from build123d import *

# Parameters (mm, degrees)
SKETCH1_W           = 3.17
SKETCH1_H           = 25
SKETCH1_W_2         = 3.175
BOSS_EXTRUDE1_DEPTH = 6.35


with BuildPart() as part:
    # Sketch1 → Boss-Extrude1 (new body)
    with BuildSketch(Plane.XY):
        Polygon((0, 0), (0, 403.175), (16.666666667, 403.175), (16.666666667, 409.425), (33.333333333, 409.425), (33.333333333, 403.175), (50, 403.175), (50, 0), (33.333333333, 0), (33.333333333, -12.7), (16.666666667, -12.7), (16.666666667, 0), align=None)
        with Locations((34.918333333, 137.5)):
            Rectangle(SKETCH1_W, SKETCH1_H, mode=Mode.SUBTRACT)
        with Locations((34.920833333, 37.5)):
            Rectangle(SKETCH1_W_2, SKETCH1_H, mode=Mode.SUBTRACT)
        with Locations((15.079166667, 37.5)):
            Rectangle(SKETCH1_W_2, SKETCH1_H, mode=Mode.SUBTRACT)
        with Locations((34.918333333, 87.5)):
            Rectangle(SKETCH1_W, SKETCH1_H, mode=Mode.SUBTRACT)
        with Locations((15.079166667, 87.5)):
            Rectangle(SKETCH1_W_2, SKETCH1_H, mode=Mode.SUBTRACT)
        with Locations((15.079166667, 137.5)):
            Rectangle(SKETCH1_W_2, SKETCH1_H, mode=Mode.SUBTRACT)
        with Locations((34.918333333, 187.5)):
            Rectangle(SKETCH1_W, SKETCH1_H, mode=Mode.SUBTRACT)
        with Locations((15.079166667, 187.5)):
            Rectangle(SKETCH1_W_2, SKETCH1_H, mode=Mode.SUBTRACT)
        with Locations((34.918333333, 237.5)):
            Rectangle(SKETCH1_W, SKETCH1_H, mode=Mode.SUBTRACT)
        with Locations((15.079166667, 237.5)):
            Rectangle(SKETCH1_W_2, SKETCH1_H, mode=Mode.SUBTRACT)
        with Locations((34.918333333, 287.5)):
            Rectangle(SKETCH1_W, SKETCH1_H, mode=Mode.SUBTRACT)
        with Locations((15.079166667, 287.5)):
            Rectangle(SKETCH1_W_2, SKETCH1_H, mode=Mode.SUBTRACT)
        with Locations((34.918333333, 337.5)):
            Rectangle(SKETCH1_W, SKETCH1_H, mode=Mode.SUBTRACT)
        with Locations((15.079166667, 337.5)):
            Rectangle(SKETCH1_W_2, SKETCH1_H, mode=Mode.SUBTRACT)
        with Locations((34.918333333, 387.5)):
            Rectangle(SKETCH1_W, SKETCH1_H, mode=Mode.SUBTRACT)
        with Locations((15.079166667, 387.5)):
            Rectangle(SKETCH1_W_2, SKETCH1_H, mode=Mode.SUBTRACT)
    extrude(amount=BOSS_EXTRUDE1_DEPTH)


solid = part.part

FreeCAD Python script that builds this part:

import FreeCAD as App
import Part
import Sketcher
from FreeCAD import Vector
Q = App.Units.Quantity


def add_polygon(sketch, points):
    """Adds a closed chain of lines whose ends are joined by coincident constraints."""
    first, n = sketch.GeometryCount, len(points)
    for a, b in zip(points, points[1:] + points[:1]):
        sketch.addGeometry(Part.LineSegment(App.Vector(*a, 0), App.Vector(*b, 0)), False)
    for i in range(n):
        sketch.addConstraint(Sketcher.Constraint("Coincident", first + i, 2, first + (i + 1) % n, 1))

doc = App.newDocument("Part")
body = doc.addObject("PartDesign::Body", "Body")

# Sketch on XY plane
sketch1 = body.newObject("Sketcher::SketchObject", "Sketch")
sketch1.AttachmentSupport = (doc.getObject("XY_Plane"), [""])
sketch1.MapMode = "FlatFace"
add_polygon(sketch1, [(0, 403.2), (0, 0), (16.7, 0), (16.7, -12.7), (33.3, -12.7), (33.3, 0), (50, 0), (50, 403.2), (33.3, 403.2), (33.3, 409.4), (16.7, 409.4), (16.7, 403.2)])  # lines 0-11
add_polygon(sketch1, [(33.3, 25), (33.3, 50), (36.5, 50), (36.5, 25)])  # lines 12-15
add_polygon(sketch1, [(33.3, 75), (33.3, 100), (36.5, 100), (36.5, 75)])  # lines 16-19
add_polygon(sketch1, [(33.3, 125), (33.3, 150), (36.5, 150), (36.5, 125)])  # lines 20-23
add_polygon(sketch1, [(33.3, 175), (33.3, 200), (36.5, 200), (36.5, 175)])  # lines 24-27
add_polygon(sketch1, [(13.5, 25), (13.5, 50), (16.7, 50), (16.7, 25)])  # lines 28-31
add_polygon(sketch1, [(13.5, 75), (13.5, 100), (16.7, 100), (16.7, 75)])  # lines 32-35
add_polygon(sketch1, [(13.5, 125), (13.5, 150), (16.7, 150), (16.7, 125)])  # lines 36-39
add_polygon(sketch1, [(13.5, 175), (13.5, 200), (16.7, 200), (16.7, 175)])  # lines 40-43
add_polygon(sketch1, [(33.3, 225), (33.3, 250), (36.5, 250), (36.5, 225)])  # lines 44-47
add_polygon(sketch1, [(33.3, 275), (33.3, 300), (36.5, 300), (36.5, 275)])  # lines 48-51
add_polygon(sketch1, [(33.3, 325), (33.3, 350), (36.5, 350), (36.5, 325)])  # lines 52-55
add_polygon(sketch1, [(33.3, 375), (33.3, 400), (36.5, 400), (36.5, 375)])  # lines 56-59
add_polygon(sketch1, [(13.5, 225), (13.5, 250), (16.7, 250), (16.7, 225)])  # lines 60-63
add_polygon(sketch1, [(13.5, 275), (13.5, 300), (16.7, 300), (16.7, 275)])  # lines 64-67
add_polygon(sketch1, [(13.5, 325), (13.5, 350), (16.7, 350), (16.7, 325)])  # lines 68-71
add_polygon(sketch1, [(13.5, 375), (13.5, 400), (16.7, 400), (16.7, 375)])  # lines 72-75
sketch1.addConstraint(Sketcher.Constraint("Vertical", 0))
sketch1.addConstraint(Sketcher.Constraint("Horizontal", 1))
sketch1.addConstraint(Sketcher.Constraint("Vertical", 2))
sketch1.addConstraint(Sketcher.Constraint("Horizontal", 3))
sketch1.addConstraint(Sketcher.Constraint("Vertical", 4))
sketch1.addConstraint(Sketcher.Constraint("Horizontal", 5))
sketch1.addConstraint(Sketcher.Constraint("Vertical", 6))
sketch1.addConstraint(Sketcher.Constraint("Horizontal", 7))
sketch1.addConstraint(Sketcher.Constraint("Vertical", 8))
sketch1.addConstraint(Sketcher.Constraint("Horizontal", 9))
sketch1.addConstraint(Sketcher.Constraint("Vertical", 10))
sketch1.addConstraint(Sketcher.Constraint("Horizontal", 11))
sketch1.addConstraint(Sketcher.Constraint("Vertical", 12))
sketch1.addConstraint(Sketcher.Constraint("Horizontal", 13))
sketch1.addConstraint(Sketcher.Constraint("Vertical", 14))
sketch1.addConstraint(Sketcher.Constraint("Horizontal", 15))
sketch1.addConstraint(Sketcher.Constraint("Vertical", 16))
sketch1.addConstraint(Sketcher.Constraint("Horizontal", 17))
sketch1.addConstraint(Sketcher.Constraint("Vertical", 18))
sketch1.addConstraint(Sketcher.Constraint("Horizontal", 19))
sketch1.addConstraint(Sketcher.Constraint("Vertical", 20))
sketch1.addConstraint(Sketcher.Constraint("Horizontal", 21))
sketch1.addConstraint(Sketcher.Constraint("Vertical", 22))
sketch1.addConstraint(Sketcher.Constraint("Horizontal", 23))
sketch1.addConstraint(Sketcher.Constraint("Vertical", 24))
sketch1.addConstraint(Sketcher.Constraint("Horizontal", 25))
sketch1.addConstraint(Sketcher.Constraint("Vertical", 26))
sketch1.addConstraint(Sketcher.Constraint("Horizontal", 27))
sketch1.addConstraint(Sketcher.Constraint("Vertical", 28))
sketch1.addConstraint(Sketcher.Constraint("Horizontal", 29))
sketch1.addConstraint(Sketcher.Constraint("Vertical", 30))
sketch1.addConstraint(Sketcher.Constraint("Horizontal", 31))
sketch1.addConstraint(Sketcher.Constraint("Vertical", 32))
sketch1.addConstraint(Sketcher.Constraint("Horizontal", 33))
sketch1.addConstraint(Sketcher.Constraint("Vertical", 34))
sketch1.addConstraint(Sketcher.Constraint("Horizontal", 35))
sketch1.addConstraint(Sketcher.Constraint("Vertical", 36))
sketch1.addConstraint(Sketcher.Constraint("Horizontal", 37))
sketch1.addConstraint(Sketcher.Constraint("Vertical", 38))
sketch1.addConstraint(Sketcher.Constraint("Horizontal", 39))
sketch1.addConstraint(Sketcher.Constraint("Vertical", 40))
sketch1.addConstraint(Sketcher.Constraint("Horizontal", 41))
sketch1.addConstraint(Sketcher.Constraint("Vertical", 42))
sketch1.addConstraint(Sketcher.Constraint("Horizontal", 43))
sketch1.addConstraint(Sketcher.Constraint("Vertical", 44))
sketch1.addConstraint(Sketcher.Constraint("Horizontal", 45))
sketch1.addConstraint(Sketcher.Constraint("Vertical", 46))
sketch1.addConstraint(Sketcher.Constraint("Horizontal", 47))
sketch1.addConstraint(Sketcher.Constraint("Vertical", 48))
sketch1.addConstraint(Sketcher.Constraint("Horizontal", 49))
sketch1.addConstraint(Sketcher.Constraint("Vertical", 50))
sketch1.addConstraint(Sketcher.Constraint("Horizontal", 51))
sketch1.addConstraint(Sketcher.Constraint("Vertical", 52))
sketch1.addConstraint(Sketcher.Constraint("Horizontal", 53))
sketch1.addConstraint(Sketcher.Constraint("Vertical", 54))
sketch1.addConstraint(Sketcher.Constraint("Horizontal", 55))
sketch1.addConstraint(Sketcher.Constraint("Vertical", 56))
sketch1.addConstraint(Sketcher.Constraint("Horizontal", 57))
sketch1.addConstraint(Sketcher.Constraint("Vertical", 58))
sketch1.addConstraint(Sketcher.Constraint("Horizontal", 59))
sketch1.addConstraint(Sketcher.Constraint("Vertical", 60))
sketch1.addConstraint(Sketcher.Constraint("Horizontal", 61))
sketch1.addConstraint(Sketcher.Constraint("Vertical", 62))
sketch1.addConstraint(Sketcher.Constraint("Horizontal", 63))
sketch1.addConstraint(Sketcher.Constraint("Vertical", 64))
sketch1.addConstraint(Sketcher.Constraint("Horizontal", 65))
sketch1.addConstraint(Sketcher.Constraint("Vertical", 66))
sketch1.addConstraint(Sketcher.Constraint("Horizontal", 67))
sketch1.addConstraint(Sketcher.Constraint("Vertical", 68))
sketch1.addConstraint(Sketcher.Constraint("Horizontal", 69))
sketch1.addConstraint(Sketcher.Constraint("Vertical", 70))
sketch1.addConstraint(Sketcher.Constraint("Horizontal", 71))
sketch1.addConstraint(Sketcher.Constraint("Vertical", 72))
sketch1.addConstraint(Sketcher.Constraint("Horizontal", 73))
sketch1.addConstraint(Sketcher.Constraint("Vertical", 74))
sketch1.addConstraint(Sketcher.Constraint("Horizontal", 75))
sketch1.addConstraint(Sketcher.Constraint("Coincident", 0, 2, -1, 1))
sketch1.addConstraint(Sketcher.Constraint("PointOnObject", 4, 2, -1))
sketch1.addConstraint(Sketcher.Constraint("Horizontal", 7, 2, 10, 2))
sketch1.addConstraint(Sketcher.Constraint("Horizontal", 13, 2, 28, 2))
sketch1.addConstraint(Sketcher.Constraint("Horizontal", 15, 2, 30, 2))
sketch1.addConstraint(Sketcher.Constraint("Horizontal", 17, 2, 32, 2))
sketch1.addConstraint(Sketcher.Constraint("Horizontal", 19, 2, 34, 2))
sketch1.addConstraint(Sketcher.Constraint("Horizontal", 21, 2, 36, 2))
sketch1.addConstraint(Sketcher.Constraint("Horizontal", 23, 2, 38, 2))
sketch1.addConstraint(Sketcher.Constraint("Horizontal", 25, 2, 40, 2))
sketch1.addConstraint(Sketcher.Constraint("Horizontal", 27, 2, 42, 2))
sketch1.addConstraint(Sketcher.Constraint("Horizontal", 45, 2, 60, 2))
sketch1.addConstraint(Sketcher.Constraint("Horizontal", 47, 2, 62, 2))
sketch1.addConstraint(Sketcher.Constraint("Horizontal", 49, 2, 64, 2))
sketch1.addConstraint(Sketcher.Constraint("Horizontal", 51, 2, 66, 2))
sketch1.addConstraint(Sketcher.Constraint("Horizontal", 53, 2, 68, 2))
sketch1.addConstraint(Sketcher.Constraint("Horizontal", 55, 2, 70, 2))
sketch1.addConstraint(Sketcher.Constraint("Horizontal", 57, 2, 72, 2))
sketch1.addConstraint(Sketcher.Constraint("Horizontal", 59, 2, 74, 2))
sketch1.addConstraint(Sketcher.Constraint("Vertical", 4, 2, 7, 2))
sketch1.addConstraint(Sketcher.Constraint("Vertical", 2, 2, 9, 2))
sketch1.addConstraint(Sketcher.Constraint("Vertical", 8, 2, 12, 2))
sketch1.addConstraint(Sketcher.Constraint("Vertical", 15, 2, 16, 2))
sketch1.addConstraint(Sketcher.Constraint("Vertical", 19, 2, 20, 2))
sketch1.addConstraint(Sketcher.Constraint("Vertical", 18, 2, 21, 2))
sketch1.addConstraint(Sketcher.Constraint("Vertical", 23, 2, 24, 2))
sketch1.addConstraint(Sketcher.Constraint("Vertical", 22, 2, 25, 2))
sketch1.addConstraint(Sketcher.Constraint("Vertical", 10, 2, 29, 2))
sketch1.addConstraint(Sketcher.Constraint("Vertical", 31, 2, 32, 2))
sketch1.addConstraint(Sketcher.Constraint("Vertical", 30, 2, 33, 2))
sketch1.addConstraint(Sketcher.Constraint("Vertical", 35, 2, 36, 2))
sketch1.addConstraint(Sketcher.Constraint("Vertical", 34, 2, 37, 2))
sketch1.addConstraint(Sketcher.Constraint("Vertical", 39, 2, 40, 2))
sketch1.addConstraint(Sketcher.Constraint("Vertical", 38, 2, 41, 2))
sketch1.addConstraint(Sketcher.Constraint("Vertical", 27, 2, 44, 2))
sketch1.addConstraint(Sketcher.Constraint("Vertical", 26, 2, 45, 2))
sketch1.addConstraint(Sketcher.Constraint("Vertical", 47, 2, 48, 2))
sketch1.addConstraint(Sketcher.Constraint("Vertical", 46, 2, 49, 2))
sketch1.addConstraint(Sketcher.Constraint("Vertical", 51, 2, 52, 2))
sketch1.addConstraint(Sketcher.Constraint("Vertical", 50, 2, 53, 2))
sketch1.addConstraint(Sketcher.Constraint("Vertical", 55, 2, 56, 2))
sketch1.addConstraint(Sketcher.Constraint("Vertical", 54, 2, 57, 2))
sketch1.addConstraint(Sketcher.Constraint("Vertical", 43, 2, 60, 2))
sketch1.addConstraint(Sketcher.Constraint("Vertical", 42, 2, 61, 2))
sketch1.addConstraint(Sketcher.Constraint("Vertical", 63, 2, 64, 2))
sketch1.addConstraint(Sketcher.Constraint("Vertical", 62, 2, 65, 2))
sketch1.addConstraint(Sketcher.Constraint("Vertical", 67, 2, 68, 2))
sketch1.addConstraint(Sketcher.Constraint("Vertical", 66, 2, 69, 2))
sketch1.addConstraint(Sketcher.Constraint("Vertical", 71, 2, 72, 2))
sketch1.addConstraint(Sketcher.Constraint("Vertical", 70, 2, 73, 2))
sketch1.addConstraint(Sketcher.Constraint("Equal", 1, 3))
sketch1.addConstraint(Sketcher.Constraint("Equal", 3, 5))
sketch1.addConstraint(Sketcher.Constraint("Equal", 15, 29))
sketch1.addConstraint(Sketcher.Constraint("Equal", 14, 16))
sketch1.addConstraint(Sketcher.Constraint("Equal", 18, 20))
sketch1.addConstraint(Sketcher.Constraint("Equal", 22, 24))
sketch1.addConstraint(Sketcher.Constraint("Equal", 42, 44))
sketch1.addConstraint(Sketcher.Constraint("Equal", 46, 48))
sketch1.addConstraint(Sketcher.Constraint("Equal", 50, 52))
sketch1.addConstraint(Sketcher.Constraint("Equal", 54, 56))
sketch1.addConstraint(Sketcher.Constraint("DistanceY", 2, 2, 2, 1, Q("0.5 in")))
sketch1.addConstraint(Sketcher.Constraint("DistanceX", 13, 1, 13, 2, Q("0.125 in")))
sketch1.addConstraint(Sketcher.Constraint("DistanceX", 17, 1, 17, 2, 3.17))
sketch1.addConstraint(Sketcher.Constraint("DistanceY", 0, 2, 0, 1, 403.175))
sketch1.addConstraint(Sketcher.Constraint("DistanceY", 8, 1, 8, 2, 6.25))
sketch1.addConstraint(Sketcher.Constraint("DistanceY", 12, 1, 12, 2, 25.0))
sketch1.addConstraint(Sketcher.Constraint("DistanceX", -1, 1, 5, 2, 50.0))
sketch1.addConstraint(Sketcher.Constraint("DistanceY", -1, 1, 12, 2, 50.0))
sketch1.addConstraint(Sketcher.Constraint("DistanceY", -1, 1, 16, 2, 100.0))
sketch1.addConstraint(Sketcher.Constraint("DistanceY", -1, 1, 20, 2, 150.0))
sketch1.addConstraint(Sketcher.Constraint("DistanceY", -1, 1, 24, 2, 200.0))
sketch1.addConstraint(Sketcher.Constraint("DistanceY", -1, 1, 44, 2, 250.0))
sketch1.addConstraint(Sketcher.Constraint("DistanceY", -1, 1, 48, 2, 300.0))
sketch1.addConstraint(Sketcher.Constraint("DistanceY", -1, 1, 52, 2, 350.0))
sketch1.addConstraint(Sketcher.Constraint("DistanceY", -1, 1, 56, 2, 400.0))
pad1 = body.newObject("PartDesign::Pad", "Pad")
pad1.Profile = sketch1
pad1.Length = Q("0.25 in")

doc.recompute()
